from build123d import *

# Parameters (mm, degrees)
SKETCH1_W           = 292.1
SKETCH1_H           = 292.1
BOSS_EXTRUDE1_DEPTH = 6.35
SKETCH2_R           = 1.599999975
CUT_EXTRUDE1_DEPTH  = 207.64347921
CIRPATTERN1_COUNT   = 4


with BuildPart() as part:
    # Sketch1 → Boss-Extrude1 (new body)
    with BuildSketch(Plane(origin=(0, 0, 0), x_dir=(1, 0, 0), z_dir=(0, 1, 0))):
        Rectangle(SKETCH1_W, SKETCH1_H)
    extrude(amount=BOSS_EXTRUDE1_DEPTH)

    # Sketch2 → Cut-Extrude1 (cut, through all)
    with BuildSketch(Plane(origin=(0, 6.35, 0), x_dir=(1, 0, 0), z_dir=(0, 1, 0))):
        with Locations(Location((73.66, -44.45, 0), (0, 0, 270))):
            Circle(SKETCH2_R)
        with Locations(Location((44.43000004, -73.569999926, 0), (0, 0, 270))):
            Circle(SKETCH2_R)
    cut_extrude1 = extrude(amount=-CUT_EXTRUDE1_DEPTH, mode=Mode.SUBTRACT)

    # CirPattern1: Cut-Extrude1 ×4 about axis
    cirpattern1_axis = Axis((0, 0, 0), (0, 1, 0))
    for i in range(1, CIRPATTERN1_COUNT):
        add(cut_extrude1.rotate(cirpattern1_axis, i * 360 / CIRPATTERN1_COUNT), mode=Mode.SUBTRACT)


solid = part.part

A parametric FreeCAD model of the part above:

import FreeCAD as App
import Part
import Sketcher
from FreeCAD import Vector
Q = App.Units.Quantity

doc = App.newDocument("Part")
body = doc.addObject("PartDesign::Body", "Body")

# Sketch on XZ plane
sketch1 = body.newObject("Sketcher::SketchObject", "Sketch")
sketch1.AttachmentSupport = (doc.getObject("XZ_Plane"), [""])
sketch1.MapMode = "FlatFace"
sketch1.addGeometry(Part.LineSegment(Vector(-146, -146, 0), Vector(-146, 146, 0)), False)
sketch1.addGeometry(Part.LineSegment(Vector(-146, 146, 0), Vector(146, 146, 0)), False)
sketch1.addGeometry(Part.LineSegment(Vector(146, 146, 0), Vector(146, -146, 0)), False)
sketch1.addGeometry(Part.LineSegment(Vector(146, -146, 0), Vector(-146, -146, 0)), False)
sketch1.addConstraint(Sketcher.Constraint("Coincident", 0, 2, 1, 1))
sketch1.addConstraint(Sketcher.Constraint("Coincident", 1, 2, 2, 1))
sketch1.addConstraint(Sketcher.Constraint("Coincident", 2, 2, 3, 1))
sketch1.addConstraint(Sketcher.Constraint("Coincident", 3, 2, 0, 1))
sketch1.addConstraint(Sketcher.Constraint("Vertical", 0))
sketch1.addConstraint(Sketcher.Constraint("Horizontal", 1))
sketch1.addConstraint(Sketcher.Constraint("Vertical", 2))
sketch1.addConstraint(Sketcher.Constraint("Horizontal", 3))
sketch1.addConstraint(Sketcher.Constraint("Symmetric", 0, 2, 2, 2, -1, 1))
sketch1.addConstraint(Sketcher.Constraint("Equal", 3, 0))
sketch1.addConstraint(Sketcher.Constraint("DistanceX", 1, 1, 1, 2, Q("11.5 in")))
pad1 = body.newObject("PartDesign::Pad", "Pad")
pad1.Profile = sketch1
pad1.Length = Q("0.25 in")
pad1.Reversed = True

# Sketch on XZ plane
sketch2 = body.newObject("Sketcher::SketchObject", "Sketch001")
sketch2.AttachmentSupport = (doc.getObject("XZ_Plane"), [""])
sketch2.MapMode = "FlatFace"
sketch2.AttachmentOffset = App.Placement(Vector(0, 0, -0.25 * 25.4), App.Rotation())
sketch2.addGeometry(Part.Circle(Vector(73.7, 44.5, 0), Vector(0, 0, 1), 1.6), False)
sketch2.addGeometry(Part.Circle(Vector(44.4, 73.6, 0), Vector(0, 0, 1), 1.6), False)
sketch2.addConstraint(Sketcher.Constraint("Equal", 0, 1))
sketch2.addConstraint(Sketcher.Constraint("DistanceX", -1, 1, 0, 3, Q("2.9 in")))
sketch2.addConstraint(Sketcher.Constraint("Diameter", 0, Q("3.2 mm")))
sketch2.addConstraint(Sketcher.Constraint("DistanceY", -1, 1, 0, 3, Q("1.75 in")))
sketch2.addConstraint(Sketcher.Constraint("DistanceX", -1, 1, 1, 3, Q("44.43 mm")))
sketch2.addConstraint(Sketcher.Constraint("DistanceY", -1, 1, 1, 3, Q("73.57 mm")))
pocket1 = body.newObject("PartDesign::Pocket", "Pocket")
pocket1.Profile = sketch2
pocket1.Type = "ThroughAll"
pocket1.Reversed = True
doc.recompute()

polarpattern = body.newObject("PartDesign::PolarPattern", "PolarPattern")
polarpattern.Originals = [pocket1]
polarpattern.Axis = (doc.getObject("Y_Axis"), [""])
polarpattern.Angle = 360
polarpattern.Occurrences = 4
body.Tip = polarpattern

doc.recompute()
